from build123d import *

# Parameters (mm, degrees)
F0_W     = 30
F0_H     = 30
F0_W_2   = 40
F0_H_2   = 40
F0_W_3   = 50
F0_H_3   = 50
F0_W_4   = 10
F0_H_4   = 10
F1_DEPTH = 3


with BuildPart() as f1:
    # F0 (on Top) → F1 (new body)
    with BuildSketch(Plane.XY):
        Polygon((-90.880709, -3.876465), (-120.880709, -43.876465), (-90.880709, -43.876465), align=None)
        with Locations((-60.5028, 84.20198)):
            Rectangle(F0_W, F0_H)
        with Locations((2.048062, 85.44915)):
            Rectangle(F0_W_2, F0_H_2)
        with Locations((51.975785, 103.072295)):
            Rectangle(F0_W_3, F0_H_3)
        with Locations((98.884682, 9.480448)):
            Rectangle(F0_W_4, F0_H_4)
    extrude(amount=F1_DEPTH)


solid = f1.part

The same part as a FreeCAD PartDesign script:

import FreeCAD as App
import Part
import Sketcher
Q = App.Units.Quantity

doc = App.newDocument("Part")
body = doc.addObject("PartDesign::Body", "Body")
body.AllowCompound = True

sketch1 = body.newObject("Sketcher::SketchObject", "Sketch")
sketch1.AttachmentSupport = (doc.getObject("XY_Plane"), [""])
sketch1.MapMode = "FlatFace"
sketch1.addGeometry(Part.LineSegment(App.Vector(-91, -4, 0), App.Vector(-121, -44, 0)), False)
sketch1.addGeometry(Part.LineSegment(App.Vector(-121, -44, 0), App.Vector(-91, -44, 0)), False)
sketch1.addGeometry(Part.LineSegment(App.Vector(-91, -44, 0), App.Vector(-91, -4, 0)), False)
sketch1.addGeometry(Part.LineSegment(App.Vector(-76, 99, 0), App.Vector(-76, 69, 0)), False)
sketch1.addGeometry(Part.LineSegment(App.Vector(-76, 69, 0), App.Vector(-46, 69, 0)), False)
sketch1.addGeometry(Part.LineSegment(App.Vector(-46, 69, 0), App.Vector(-46, 99, 0)), False)
sketch1.addGeometry(Part.LineSegment(App.Vector(-46, 99, 0), App.Vector(-76, 99, 0)), False)
sketch1.addGeometry(Part.LineSegment(App.Vector(-18, 105, 0), App.Vector(-18, 65, 0)), False)
sketch1.addGeometry(Part.LineSegment(App.Vector(-18, 65, 0), App.Vector(22, 65, 0)), False)
sketch1.addGeometry(Part.LineSegment(App.Vector(22, 65, 0), App.Vector(22, 105, 0)), False)
sketch1.addGeometry(Part.LineSegment(App.Vector(22, 105, 0), App.Vector(-18, 105, 0)), False)
sketch1.addGeometry(Part.LineSegment(App.Vector(27, 128, 0), App.Vector(27, 78, 0)), False)
sketch1.addGeometry(Part.LineSegment(App.Vector(27, 78, 0), App.Vector(77, 78, 0)), False)
sketch1.addGeometry(Part.LineSegment(App.Vector(77, 78, 0), App.Vector(77, 128, 0)), False)
sketch1.addGeometry(Part.LineSegment(App.Vector(77, 128, 0), App.Vector(27, 128, 0)), False)
sketch1.addGeometry(Part.LineSegment(App.Vector(94, 14, 0), App.Vector(94, 4, 0)), False)
sketch1.addGeometry(Part.LineSegment(App.Vector(94, 4, 0), App.Vector(104, 4, 0)), False)
sketch1.addGeometry(Part.LineSegment(App.Vector(104, 4, 0), App.Vector(104, 14, 0)), False)
sketch1.addGeometry(Part.LineSegment(App.Vector(104, 14, 0), App.Vector(94, 14, 0)), False)
sketch1.addConstraint(Sketcher.Constraint("Coincident", 0, 2, 1, 1))
sketch1.addConstraint(Sketcher.Constraint("Coincident", 1, 2, 2, 1))
sketch1.addConstraint(Sketcher.Constraint("Coincident", 2, 2, 0, 1))
sketch1.addConstraint(Sketcher.Constraint("Coincident", 3, 2, 4, 1))
sketch1.addConstraint(Sketcher.Constraint("Coincident", 4, 2, 5, 1))
sketch1.addConstraint(Sketcher.Constraint("Coincident", 5, 2, 6, 1))
sketch1.addConstraint(Sketcher.Constraint("Coincident", 6, 2, 3, 1))
sketch1.addConstraint(Sketcher.Constraint("Coincident", 7, 2, 8, 1))
sketch1.addConstraint(Sketcher.Constraint("Coincident", 8, 2, 9, 1))
sketch1.addConstraint(Sketcher.Constraint("Coincident", 9, 2, 10, 1))
sketch1.addConstraint(Sketcher.Constraint("Coincident", 10, 2, 7, 1))
sketch1.addConstraint(Sketcher.Constraint("Coincident", 11, 2, 12, 1))
sketch1.addConstraint(Sketcher.Constraint("Coincident", 12, 2, 13, 1))
sketch1.addConstraint(Sketcher.Constraint("Coincident", 13, 2, 14, 1))
sketch1.addConstraint(Sketcher.Constraint("Coincident", 14, 2, 11, 1))
sketch1.addConstraint(Sketcher.Constraint("Coincident", 15, 2, 16, 1))
sketch1.addConstraint(Sketcher.Constraint("Coincident", 16, 2, 17, 1))
sketch1.addConstraint(Sketcher.Constraint("Coincident", 17, 2, 18, 1))
sketch1.addConstraint(Sketcher.Constraint("Coincident", 18, 2, 15, 1))
sketch1.addConstraint(Sketcher.Constraint("Horizontal", 1))
sketch1.addConstraint(Sketcher.Constraint("Vertical", 2))
sketch1.addConstraint(Sketcher.Constraint("Vertical", 3))
sketch1.addConstraint(Sketcher.Constraint("Horizontal", 4))
sketch1.addConstraint(Sketcher.Constraint("Vertical", 5))
sketch1.addConstraint(Sketcher.Constraint("Horizontal", 6))
sketch1.addConstraint(Sketcher.Constraint("Vertical", 7))
sketch1.addConstraint(Sketcher.Constraint("Horizontal", 8))
sketch1.addConstraint(Sketcher.Constraint("Vertical", 9))
sketch1.addConstraint(Sketcher.Constraint("Horizontal", 10))
sketch1.addConstraint(Sketcher.Constraint("Vertical", 11))
sketch1.addConstraint(Sketcher.Constraint("Horizontal", 12))
sketch1.addConstraint(Sketcher.Constraint("Vertical", 13))
sketch1.addConstraint(Sketcher.Constraint("Horizontal", 14))
sketch1.addConstraint(Sketcher.Constraint("Vertical", 15))
sketch1.addConstraint(Sketcher.Constraint("Horizontal", 16))
sketch1.addConstraint(Sketcher.Constraint("Vertical", 17))
sketch1.addConstraint(Sketcher.Constraint("Horizontal", 18))
sketch1.addConstraint(Sketcher.Constraint("Equal", 1, 4))
sketch1.addConstraint(Sketcher.Constraint("Equal", 10, 2))
sketch1.addConstraint(Sketcher.Constraint("Equal", 6, 3))
sketch1.addConstraint(Sketcher.Constraint("Equal", 2, 7))
sketch1.addConstraint(Sketcher.Constraint("Equal", 14, 11))
sketch1.addConstraint(Sketcher.Constraint("Equal", 18, 15))
sketch1.addConstraint(Sketcher.Constraint("DistanceX", 1, 1, 1, 2, Q("30 mm")))
sketch1.addConstraint(Sketcher.Constraint("DistanceX", 8, 1, 8, 2, Q("40 mm")))
sketch1.addConstraint(Sketcher.Constraint("DistanceX", 12, 1, 12, 2, Q("50 mm")))
sketch1.addConstraint(Sketcher.Constraint("DistanceX", 16, 1, 16, 2, Q("10 mm")))
sketch1.addConstraint(Sketcher.Constraint("DistanceX", 3, 2, -1, 1, Q("75.5028 mm")))
sketch1.addConstraint(Sketcher.Constraint("DistanceX", 0, 2, -1, 1, Q("120.880709 mm")))
sketch1.addConstraint(Sketcher.Constraint("DistanceY", -1, 1, 3, 2, Q("69.20198 mm")))
sketch1.addConstraint(Sketcher.Constraint("DistanceY", -1, 1, 7, 2, Q("65.44915 mm")))
sketch1.addConstraint(Sketcher.Constraint("DistanceX", -1, 1, 15, 2, Q("93.884682 mm")))
sketch1.addConstraint(Sketcher.Constraint("DistanceY", -1, 1, 17, 2, Q("14.480448 mm")))
sketch1.addConstraint(Sketcher.Constraint("DistanceX", 3, 2, 7, 2, Q("57.550862 mm")))
sketch1.addConstraint(Sketcher.Constraint("DistanceY", 0, 2, -1, 1, Q("43.876465 mm")))
sketch1.addConstraint(Sketcher.Constraint("DistanceX", -1, 1, 11, 2, Q("26.975785 mm")))
sketch1.addConstraint(Sketcher.Constraint("DistanceY", -1, 1, 11, 2, Q("78.072295 mm")))
pad1 = body.newObject("PartDesign::Pad", "Pad")
pad1.Profile = sketch1
pad1.Length = 3

doc.recompute()
